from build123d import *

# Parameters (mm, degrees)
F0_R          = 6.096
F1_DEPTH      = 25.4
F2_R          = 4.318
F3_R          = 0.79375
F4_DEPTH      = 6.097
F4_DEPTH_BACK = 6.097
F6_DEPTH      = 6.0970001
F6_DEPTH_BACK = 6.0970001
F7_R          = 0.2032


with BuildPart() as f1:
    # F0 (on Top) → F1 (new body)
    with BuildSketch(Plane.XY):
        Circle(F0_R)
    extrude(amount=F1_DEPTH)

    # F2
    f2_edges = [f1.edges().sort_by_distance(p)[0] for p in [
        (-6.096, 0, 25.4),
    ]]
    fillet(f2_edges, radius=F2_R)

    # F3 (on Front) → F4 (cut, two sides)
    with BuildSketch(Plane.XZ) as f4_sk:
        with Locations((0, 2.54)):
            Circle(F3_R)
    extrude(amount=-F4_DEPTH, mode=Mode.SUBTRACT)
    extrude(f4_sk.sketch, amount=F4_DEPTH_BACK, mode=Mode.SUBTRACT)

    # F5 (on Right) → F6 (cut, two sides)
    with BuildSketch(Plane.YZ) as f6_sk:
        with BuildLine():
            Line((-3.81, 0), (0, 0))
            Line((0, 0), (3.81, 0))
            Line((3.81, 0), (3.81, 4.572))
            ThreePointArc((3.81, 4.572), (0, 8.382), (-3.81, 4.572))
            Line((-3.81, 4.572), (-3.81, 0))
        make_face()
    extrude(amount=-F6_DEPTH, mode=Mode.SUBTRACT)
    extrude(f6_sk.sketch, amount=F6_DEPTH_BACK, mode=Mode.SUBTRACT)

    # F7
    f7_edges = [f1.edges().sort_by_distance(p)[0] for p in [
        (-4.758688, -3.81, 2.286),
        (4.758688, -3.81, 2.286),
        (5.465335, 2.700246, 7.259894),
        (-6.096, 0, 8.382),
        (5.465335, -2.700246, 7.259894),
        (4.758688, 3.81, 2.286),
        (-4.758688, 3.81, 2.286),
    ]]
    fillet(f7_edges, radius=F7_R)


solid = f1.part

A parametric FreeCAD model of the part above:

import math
import FreeCAD as App
import Part
import Sketcher

V = App.Vector
Q = App.Units.Quantity


def edges_at(feature, points):
    """Names of the edges that pass closest to the given points."""
    edges = feature.Shape.Edges
    near = lambda p: min(range(len(edges)), key=lambda i: edges[i].distToShape(Part.Vertex(*p))[0])
    return sorted({f"Edge{near(p) + 1}" for p in points})

doc = App.newDocument("Part")
params = doc.addObject("Spreadsheet::Sheet", "Params")
for row, (alias, value) in enumerate([
    ("sketch1_diameter", "0.48 in"),
    ("pad1_length", "1 in"),
    ("fillet_radius", "0.17 in"),
    ("sketch2_diameter", "0.0625 in"),
    ("sketch3_radius", "0.15 in"),
    ("sketch3_height", "0.18 in"),
    ("fillet2_radius", "0.008 in"),
], start=1):
    params.set(f"A{row}", alias)
    params.set(f"B{row}", "=" + value)
    params.setAlias(f"B{row}", alias)

body = doc.addObject("PartDesign::Body", "Body")

# Sketch on XY plane
sketch1 = body.newObject("Sketcher::SketchObject", "Sketch")
sketch1.AttachmentSupport = (doc.getObject("XY_Plane"), [""])
sketch1.MapMode = "FlatFace"
sketch1.addGeometry(Part.Circle(V(0, 0, 0), V(0, 0, 1), 6), False)
sketch1.addConstraint([
    Sketcher.Constraint("Coincident", 0, 3, -1, 1),
    Sketcher.Constraint("Diameter", 0, Q("0.48 in")),
])
sketch1.setExpression("Constraints[1]", "Params.sketch1_diameter")
pad1 = body.newObject("PartDesign::Pad", "Pad")
pad1.Profile = sketch1
pad1.setExpression("Length", "Params.pad1_length")
doc.recompute()

fillet = body.newObject("PartDesign::Fillet", "Fillet")
fillet.Base = (pad1, edges_at(pad1, [(-6.096, 0, 25.4)]))
fillet.setExpression("Radius", "Params.fillet_radius")

# Sketch on XZ plane
sketch2 = body.newObject("Sketcher::SketchObject", "Sketch001")
sketch2.AttachmentSupport = (doc.getObject("XZ_Plane"), [""])
sketch2.MapMode = "FlatFace"
sketch2.addGeometry(Part.Circle(V(0, 2.5, 0), V(0, 0, 1), 0.8), False)
sketch2.addConstraint([
    Sketcher.Constraint("PointOnObject", 0, 3, -2),
    Sketcher.Constraint("Diameter", 0, Q("0.0625 in")),
    Sketcher.Constraint("DistanceY", -1, 1, 0, 3, Q("0.1 in")),
])
sketch2.setExpression("Constraints[1]", "Params.sketch2_diameter")
pocket1 = body.newObject("PartDesign::Pocket", "Pocket")
pocket1.Profile = sketch2
pocket1.Type = "ThroughAll"
pocket1.Midplane = True

# Sketch on YZ plane
sketch3 = body.newObject("Sketcher::SketchObject", "Sketch002")
sketch3.AttachmentSupport = (doc.getObject("YZ_Plane"), [""])
sketch3.MapMode = "FlatFace"
sketch3.addGeometry([
    Part.LineSegment(V(-3.8, 0, 0), V(3.8, 0, 0)),
    Part.LineSegment(V(3.8, 0, 0), V(3.8, 4.6, 0)),
    Part.ArcOfCircle(Part.Circle(V(0, 4.6, 0), V(0, 0, 1), 3.8), math.radians(0), math.radians(180)),
    Part.LineSegment(V(-3.8, 4.6, 0), V(-3.8, 0, 0)),
], False)
sketch3.addConstraint([
    Sketcher.Constraint("Coincident", 0, 2, 1, 1),
    Sketcher.Constraint("Tangent", 1, 2, 2, 1),
    Sketcher.Constraint("Tangent", 2, 2, 3, 1),
    Sketcher.Constraint("Coincident", 3, 2, 0, 1),
    Sketcher.Constraint("Horizontal", 0),
    Sketcher.Constraint("Vertical", 1),
    Sketcher.Constraint("Vertical", 3),
    Sketcher.Constraint("Symmetric", 0, 2, 3, 2, -1, 1),
    Sketcher.Constraint("Radius", 2, Q("0.15 in")),
    Sketcher.Constraint("DistanceY", 1, 1, 1, 2, Q("0.18 in")),
])
sketch3.setExpression("Constraints[8]", "Params.sketch3_radius")
sketch3.setExpression("Constraints[9]", "Params.sketch3_height")
pocket2 = body.newObject("PartDesign::Pocket", "Pocket001")
pocket2.Profile = sketch3
pocket2.Type = "ThroughAll"
pocket2.Midplane = True
doc.recompute()

fillet2 = body.newObject("PartDesign::Fillet", "Fillet001")
fillet2.Base = (pocket2, edges_at(pocket2, [
    (-4.759, -3.81, 2.286),
    (4.759, -3.81, 2.286),
    (5.465, 2.7, 7.26),
    (-6.096, 0, 8.382),
    (5.465, -2.7, 7.26),
    (4.759, 3.81, 2.286),
    (-4.759, 3.81, 2.286),
]))
fillet2.setExpression("Radius", "Params.fillet2_radius")

doc.recompute()
